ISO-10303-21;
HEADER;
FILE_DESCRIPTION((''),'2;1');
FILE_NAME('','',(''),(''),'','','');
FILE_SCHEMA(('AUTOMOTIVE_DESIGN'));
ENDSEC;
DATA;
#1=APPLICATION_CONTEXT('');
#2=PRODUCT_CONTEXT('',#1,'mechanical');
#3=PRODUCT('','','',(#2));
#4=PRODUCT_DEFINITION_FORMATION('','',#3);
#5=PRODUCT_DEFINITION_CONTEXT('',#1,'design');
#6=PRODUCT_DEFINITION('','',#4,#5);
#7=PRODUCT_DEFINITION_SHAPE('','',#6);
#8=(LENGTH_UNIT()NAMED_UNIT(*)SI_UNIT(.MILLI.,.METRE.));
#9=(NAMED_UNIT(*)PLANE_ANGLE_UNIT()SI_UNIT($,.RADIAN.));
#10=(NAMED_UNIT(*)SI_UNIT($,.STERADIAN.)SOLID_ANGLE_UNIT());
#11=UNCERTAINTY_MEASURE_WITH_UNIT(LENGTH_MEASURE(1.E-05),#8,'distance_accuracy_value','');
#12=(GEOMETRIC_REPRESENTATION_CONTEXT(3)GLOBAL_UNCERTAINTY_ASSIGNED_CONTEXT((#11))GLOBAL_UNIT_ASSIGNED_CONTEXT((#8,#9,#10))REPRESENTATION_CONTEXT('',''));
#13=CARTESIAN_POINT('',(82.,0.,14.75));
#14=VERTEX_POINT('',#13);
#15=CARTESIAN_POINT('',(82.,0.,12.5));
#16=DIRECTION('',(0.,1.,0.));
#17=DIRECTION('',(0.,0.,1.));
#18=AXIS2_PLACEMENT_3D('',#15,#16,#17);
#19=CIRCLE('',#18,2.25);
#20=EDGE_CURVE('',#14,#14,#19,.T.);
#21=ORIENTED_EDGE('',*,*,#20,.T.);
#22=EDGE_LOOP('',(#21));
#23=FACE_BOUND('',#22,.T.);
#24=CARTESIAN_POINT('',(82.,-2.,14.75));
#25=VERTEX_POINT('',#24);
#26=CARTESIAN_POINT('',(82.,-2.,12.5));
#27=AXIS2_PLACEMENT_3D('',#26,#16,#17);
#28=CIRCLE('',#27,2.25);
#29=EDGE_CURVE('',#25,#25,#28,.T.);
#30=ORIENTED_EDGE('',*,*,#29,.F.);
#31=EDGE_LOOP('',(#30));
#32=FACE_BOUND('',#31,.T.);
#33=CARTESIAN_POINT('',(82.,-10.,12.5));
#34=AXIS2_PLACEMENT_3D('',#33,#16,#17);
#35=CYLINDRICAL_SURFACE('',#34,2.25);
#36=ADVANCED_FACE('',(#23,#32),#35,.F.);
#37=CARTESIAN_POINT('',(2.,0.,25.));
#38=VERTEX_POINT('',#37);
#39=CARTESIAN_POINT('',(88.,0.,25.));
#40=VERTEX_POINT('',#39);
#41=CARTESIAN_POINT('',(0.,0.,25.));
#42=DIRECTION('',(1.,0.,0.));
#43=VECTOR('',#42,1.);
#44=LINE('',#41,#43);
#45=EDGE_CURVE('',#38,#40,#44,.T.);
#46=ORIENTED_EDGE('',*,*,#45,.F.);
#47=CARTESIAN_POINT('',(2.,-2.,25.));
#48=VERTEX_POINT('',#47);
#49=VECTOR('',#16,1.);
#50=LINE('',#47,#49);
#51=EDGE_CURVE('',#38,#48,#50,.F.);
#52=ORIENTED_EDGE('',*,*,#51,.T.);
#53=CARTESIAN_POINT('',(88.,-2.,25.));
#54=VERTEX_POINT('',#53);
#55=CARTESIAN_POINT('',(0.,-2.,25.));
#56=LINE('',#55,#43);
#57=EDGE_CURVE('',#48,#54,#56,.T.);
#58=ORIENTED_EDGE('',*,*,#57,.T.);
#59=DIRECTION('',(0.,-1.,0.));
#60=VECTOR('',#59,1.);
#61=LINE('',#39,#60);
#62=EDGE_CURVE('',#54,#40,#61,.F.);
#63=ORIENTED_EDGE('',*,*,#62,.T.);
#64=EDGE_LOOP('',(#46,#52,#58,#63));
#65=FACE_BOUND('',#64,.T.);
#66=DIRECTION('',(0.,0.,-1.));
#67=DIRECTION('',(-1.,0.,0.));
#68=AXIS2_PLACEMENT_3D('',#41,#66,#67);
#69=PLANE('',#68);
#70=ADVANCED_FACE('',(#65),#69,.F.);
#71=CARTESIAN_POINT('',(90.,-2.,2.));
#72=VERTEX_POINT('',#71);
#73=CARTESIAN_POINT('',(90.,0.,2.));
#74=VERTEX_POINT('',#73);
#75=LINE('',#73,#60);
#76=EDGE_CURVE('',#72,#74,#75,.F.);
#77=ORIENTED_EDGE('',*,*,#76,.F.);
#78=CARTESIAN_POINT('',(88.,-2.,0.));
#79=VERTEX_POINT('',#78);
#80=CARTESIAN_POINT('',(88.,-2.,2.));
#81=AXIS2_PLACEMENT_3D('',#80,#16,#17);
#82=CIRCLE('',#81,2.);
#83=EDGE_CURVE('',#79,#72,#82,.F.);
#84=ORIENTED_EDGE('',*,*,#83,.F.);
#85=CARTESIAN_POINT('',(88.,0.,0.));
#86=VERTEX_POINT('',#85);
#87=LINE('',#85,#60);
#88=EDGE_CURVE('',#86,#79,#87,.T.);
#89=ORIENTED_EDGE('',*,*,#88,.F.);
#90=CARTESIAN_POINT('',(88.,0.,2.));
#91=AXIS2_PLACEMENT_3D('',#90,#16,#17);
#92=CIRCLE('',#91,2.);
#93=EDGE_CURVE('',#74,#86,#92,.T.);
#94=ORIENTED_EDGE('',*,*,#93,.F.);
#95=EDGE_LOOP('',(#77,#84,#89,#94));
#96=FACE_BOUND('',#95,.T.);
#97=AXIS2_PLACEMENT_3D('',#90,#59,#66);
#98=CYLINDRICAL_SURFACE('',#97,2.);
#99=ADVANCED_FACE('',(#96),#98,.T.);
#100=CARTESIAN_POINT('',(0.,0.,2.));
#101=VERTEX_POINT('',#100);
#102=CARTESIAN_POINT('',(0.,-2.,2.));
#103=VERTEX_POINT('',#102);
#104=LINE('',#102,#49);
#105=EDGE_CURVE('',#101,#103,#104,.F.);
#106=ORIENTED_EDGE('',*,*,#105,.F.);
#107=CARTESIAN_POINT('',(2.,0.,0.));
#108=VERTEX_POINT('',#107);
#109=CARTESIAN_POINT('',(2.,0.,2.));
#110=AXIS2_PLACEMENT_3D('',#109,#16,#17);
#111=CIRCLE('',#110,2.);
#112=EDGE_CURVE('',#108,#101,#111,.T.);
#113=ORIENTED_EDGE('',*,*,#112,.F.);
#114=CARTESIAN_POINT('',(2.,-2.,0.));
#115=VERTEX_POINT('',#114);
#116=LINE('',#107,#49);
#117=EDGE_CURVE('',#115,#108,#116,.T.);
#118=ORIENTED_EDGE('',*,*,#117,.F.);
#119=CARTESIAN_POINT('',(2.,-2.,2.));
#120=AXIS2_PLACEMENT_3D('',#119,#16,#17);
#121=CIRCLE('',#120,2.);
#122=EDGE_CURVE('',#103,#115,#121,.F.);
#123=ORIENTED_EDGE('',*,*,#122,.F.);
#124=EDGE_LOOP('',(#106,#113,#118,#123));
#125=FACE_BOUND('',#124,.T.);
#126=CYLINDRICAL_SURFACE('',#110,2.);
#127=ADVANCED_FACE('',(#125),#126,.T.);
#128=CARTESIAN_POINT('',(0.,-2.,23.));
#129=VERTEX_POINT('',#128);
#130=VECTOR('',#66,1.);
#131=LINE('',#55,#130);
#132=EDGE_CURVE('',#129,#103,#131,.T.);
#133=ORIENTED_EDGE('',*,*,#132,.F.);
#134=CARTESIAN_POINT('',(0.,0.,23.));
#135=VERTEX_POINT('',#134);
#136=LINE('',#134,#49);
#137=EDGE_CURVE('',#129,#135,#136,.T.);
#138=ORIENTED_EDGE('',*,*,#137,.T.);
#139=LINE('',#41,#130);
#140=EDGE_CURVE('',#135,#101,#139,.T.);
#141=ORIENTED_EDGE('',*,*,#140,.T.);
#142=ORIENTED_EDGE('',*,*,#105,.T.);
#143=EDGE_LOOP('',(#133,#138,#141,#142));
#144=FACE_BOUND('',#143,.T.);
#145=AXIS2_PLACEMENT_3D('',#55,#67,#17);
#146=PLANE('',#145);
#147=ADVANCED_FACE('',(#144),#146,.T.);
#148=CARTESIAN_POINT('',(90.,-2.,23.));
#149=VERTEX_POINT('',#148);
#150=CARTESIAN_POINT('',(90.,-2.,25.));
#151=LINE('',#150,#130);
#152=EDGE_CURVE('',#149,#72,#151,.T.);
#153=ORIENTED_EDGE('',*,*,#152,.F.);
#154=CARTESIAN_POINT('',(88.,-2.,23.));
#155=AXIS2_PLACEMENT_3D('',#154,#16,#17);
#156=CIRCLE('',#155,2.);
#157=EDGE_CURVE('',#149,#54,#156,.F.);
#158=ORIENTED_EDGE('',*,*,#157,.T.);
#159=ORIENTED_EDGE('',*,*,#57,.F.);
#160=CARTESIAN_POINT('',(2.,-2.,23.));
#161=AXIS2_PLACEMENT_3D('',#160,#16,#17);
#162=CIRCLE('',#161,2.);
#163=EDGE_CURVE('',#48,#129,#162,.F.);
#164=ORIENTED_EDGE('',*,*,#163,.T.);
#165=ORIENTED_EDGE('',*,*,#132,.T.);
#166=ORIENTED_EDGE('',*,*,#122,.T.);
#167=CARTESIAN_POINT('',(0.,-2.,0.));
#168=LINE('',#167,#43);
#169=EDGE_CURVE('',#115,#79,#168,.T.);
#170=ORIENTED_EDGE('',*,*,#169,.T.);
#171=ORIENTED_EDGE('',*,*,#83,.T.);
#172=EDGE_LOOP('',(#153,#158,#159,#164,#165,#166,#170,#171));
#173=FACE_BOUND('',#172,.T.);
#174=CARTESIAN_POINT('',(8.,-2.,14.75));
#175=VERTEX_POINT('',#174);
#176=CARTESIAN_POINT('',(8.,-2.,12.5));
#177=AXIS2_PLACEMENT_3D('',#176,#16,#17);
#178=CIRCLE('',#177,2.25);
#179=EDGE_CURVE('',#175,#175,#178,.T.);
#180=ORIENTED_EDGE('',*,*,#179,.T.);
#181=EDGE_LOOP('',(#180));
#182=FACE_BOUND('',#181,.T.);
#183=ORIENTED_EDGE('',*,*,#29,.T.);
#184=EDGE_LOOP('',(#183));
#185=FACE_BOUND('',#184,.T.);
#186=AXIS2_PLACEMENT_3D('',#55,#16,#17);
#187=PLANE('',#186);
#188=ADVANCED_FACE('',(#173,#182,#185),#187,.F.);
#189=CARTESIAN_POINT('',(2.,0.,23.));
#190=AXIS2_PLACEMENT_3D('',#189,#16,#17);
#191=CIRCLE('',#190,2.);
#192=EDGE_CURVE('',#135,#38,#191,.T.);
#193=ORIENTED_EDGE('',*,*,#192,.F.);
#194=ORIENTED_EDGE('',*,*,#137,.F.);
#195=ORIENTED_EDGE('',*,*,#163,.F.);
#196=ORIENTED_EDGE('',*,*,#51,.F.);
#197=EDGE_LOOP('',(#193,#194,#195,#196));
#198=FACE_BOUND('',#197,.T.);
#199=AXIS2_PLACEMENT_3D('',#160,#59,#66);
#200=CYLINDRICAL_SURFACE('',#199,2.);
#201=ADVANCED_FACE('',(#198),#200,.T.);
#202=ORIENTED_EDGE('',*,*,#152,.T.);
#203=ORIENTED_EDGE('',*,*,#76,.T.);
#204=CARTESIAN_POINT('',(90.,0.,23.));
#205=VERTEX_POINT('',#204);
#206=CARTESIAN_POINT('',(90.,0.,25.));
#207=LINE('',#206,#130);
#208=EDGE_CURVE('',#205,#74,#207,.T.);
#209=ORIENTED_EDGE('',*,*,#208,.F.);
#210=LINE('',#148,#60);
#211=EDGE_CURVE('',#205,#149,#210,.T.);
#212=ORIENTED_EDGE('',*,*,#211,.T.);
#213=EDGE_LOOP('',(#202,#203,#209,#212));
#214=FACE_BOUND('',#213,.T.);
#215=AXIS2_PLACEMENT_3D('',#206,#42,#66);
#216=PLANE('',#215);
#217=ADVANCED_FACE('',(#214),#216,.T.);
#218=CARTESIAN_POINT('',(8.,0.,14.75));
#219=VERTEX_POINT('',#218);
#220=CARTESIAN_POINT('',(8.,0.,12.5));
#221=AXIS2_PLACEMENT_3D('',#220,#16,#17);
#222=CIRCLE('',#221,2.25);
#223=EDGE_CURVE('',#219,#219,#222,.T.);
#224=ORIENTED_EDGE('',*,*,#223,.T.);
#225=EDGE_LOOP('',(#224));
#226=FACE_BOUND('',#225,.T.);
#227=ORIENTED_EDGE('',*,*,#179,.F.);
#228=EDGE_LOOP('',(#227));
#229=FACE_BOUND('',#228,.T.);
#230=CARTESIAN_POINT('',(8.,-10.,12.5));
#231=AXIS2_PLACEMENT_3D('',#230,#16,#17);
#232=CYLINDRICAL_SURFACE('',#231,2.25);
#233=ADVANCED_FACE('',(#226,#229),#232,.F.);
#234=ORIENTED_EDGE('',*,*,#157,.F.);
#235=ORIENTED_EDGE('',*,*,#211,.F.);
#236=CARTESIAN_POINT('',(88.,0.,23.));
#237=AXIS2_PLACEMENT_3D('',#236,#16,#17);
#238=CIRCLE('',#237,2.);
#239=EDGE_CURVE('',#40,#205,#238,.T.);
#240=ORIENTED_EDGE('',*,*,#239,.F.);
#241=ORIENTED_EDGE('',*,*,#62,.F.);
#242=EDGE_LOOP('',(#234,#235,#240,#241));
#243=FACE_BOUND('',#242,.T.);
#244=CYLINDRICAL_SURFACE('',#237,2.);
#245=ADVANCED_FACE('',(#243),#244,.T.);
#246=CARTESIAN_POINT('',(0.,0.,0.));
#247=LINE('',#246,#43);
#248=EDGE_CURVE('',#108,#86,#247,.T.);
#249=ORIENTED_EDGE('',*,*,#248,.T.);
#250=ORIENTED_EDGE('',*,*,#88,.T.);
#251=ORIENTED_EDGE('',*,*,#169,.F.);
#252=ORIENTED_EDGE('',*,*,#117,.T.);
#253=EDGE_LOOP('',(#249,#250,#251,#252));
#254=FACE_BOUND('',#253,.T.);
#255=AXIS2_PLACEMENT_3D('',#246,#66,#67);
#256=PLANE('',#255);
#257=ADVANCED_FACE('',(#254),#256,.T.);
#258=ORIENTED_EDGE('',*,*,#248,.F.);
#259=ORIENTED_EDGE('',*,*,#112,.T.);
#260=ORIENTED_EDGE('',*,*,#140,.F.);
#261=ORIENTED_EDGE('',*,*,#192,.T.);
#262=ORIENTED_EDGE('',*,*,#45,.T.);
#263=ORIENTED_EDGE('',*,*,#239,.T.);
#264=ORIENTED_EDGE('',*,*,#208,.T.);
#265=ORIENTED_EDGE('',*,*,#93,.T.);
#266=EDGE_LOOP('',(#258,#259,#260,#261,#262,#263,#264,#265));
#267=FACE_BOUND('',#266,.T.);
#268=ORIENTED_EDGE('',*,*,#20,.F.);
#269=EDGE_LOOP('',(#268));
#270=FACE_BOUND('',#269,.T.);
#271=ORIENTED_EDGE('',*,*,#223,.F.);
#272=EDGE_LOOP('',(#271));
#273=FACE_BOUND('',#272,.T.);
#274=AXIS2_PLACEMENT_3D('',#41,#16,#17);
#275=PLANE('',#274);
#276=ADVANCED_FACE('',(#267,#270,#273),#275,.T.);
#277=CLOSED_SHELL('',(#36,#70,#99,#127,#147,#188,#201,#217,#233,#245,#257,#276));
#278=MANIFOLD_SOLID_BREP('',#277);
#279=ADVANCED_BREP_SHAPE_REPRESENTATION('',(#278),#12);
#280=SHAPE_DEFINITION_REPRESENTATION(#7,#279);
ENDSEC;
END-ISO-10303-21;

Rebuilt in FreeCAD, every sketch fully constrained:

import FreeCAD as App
import Part
import Sketcher


def edges_at(feature, points):
    """Names of the edges that pass closest to the given points."""
    edges = feature.Shape.Edges
    near = lambda p: min(range(len(edges)), key=lambda i: edges[i].distToShape(Part.Vertex(*p))[0])
    return sorted({f"Edge{near(p) + 1}" for p in points})


def add_polygon(sketch, points):
    """Adds a closed chain of lines whose ends are joined by coincident constraints."""
    first, n = sketch.GeometryCount, len(points)
    for a, b in zip(points, points[1:] + points[:1]):
        sketch.addGeometry(Part.LineSegment(App.Vector(*a, 0), App.Vector(*b, 0)), False)
    for i in range(n):
        sketch.addConstraint(Sketcher.Constraint("Coincident", first + i, 2, first + (i + 1) % n, 1))

doc = App.newDocument("Part")
body = doc.addObject("PartDesign::Body", "Body")

# Sketch on XY plane
sketch1 = body.newObject("Sketcher::SketchObject", "Sketch")
sketch1.AttachmentSupport = (doc.getObject("XY_Plane"), [""])
sketch1.MapMode = "FlatFace"
add_polygon(sketch1, [(0, 0), (0, -2), (90, -2), (90, 0)])  # lines 0-3
sketch1.addConstraint(Sketcher.Constraint("Vertical", 0))
sketch1.addConstraint(Sketcher.Constraint("Horizontal", 1))
sketch1.addConstraint(Sketcher.Constraint("Vertical", 2))
sketch1.addConstraint(Sketcher.Constraint("Horizontal", 3))
sketch1.addConstraint(Sketcher.Constraint("Coincident", 3, 2, -1, 1))
sketch1.addConstraint(Sketcher.Constraint("DistanceX", 1, 1, 1, 2, 90.0))
sketch1.addConstraint(Sketcher.Constraint("DistanceY", 0, 2, 0, 1, 2.0))
pad1 = body.newObject("PartDesign::Pad", "Pad")
pad1.Profile = sketch1
pad1.Length = 25
doc.recompute()

fillet = body.newObject("PartDesign::Fillet", "Fillet")
fillet.Base = (pad1, edges_at(pad1, [(90, -1, 25)]))
fillet.Radius = 2
doc.recompute()

fillet2 = body.newObject("PartDesign::Fillet", "Fillet001")
fillet2.Base = (fillet, edges_at(fillet, [(90, -1, 0)]))
fillet2.Radius = 2
doc.recompute()

fillet3 = body.newObject("PartDesign::Fillet", "Fillet002")
fillet3.Base = (fillet2, edges_at(fillet2, [(0, -1, 0)]))
fillet3.Radius = 2
doc.recompute()

fillet4 = body.newObject("PartDesign::Fillet", "Fillet003")
fillet4.Base = (fillet3, edges_at(fillet3, [(0, -1, 25)]))
fillet4.Radius = 2

# Sketch on XZ plane
sketch2 = body.newObject("Sketcher::SketchObject", "Sketch001")
sketch2.AttachmentSupport = (doc.getObject("XZ_Plane"), [""])
sketch2.MapMode = "FlatFace"
sketch2.addGeometry(Part.Circle(App.Vector(82, 12.5, 0), App.Vector(0, 0, 1), 2.25), False)
sketch2.addGeometry(Part.Circle(App.Vector(8, 12.5, 0), App.Vector(0, 0, 1), 2.25), False)
sketch2.addConstraint(Sketcher.Constraint("Equal", 0, 1))
sketch2.addConstraint(Sketcher.Constraint("Horizontal", 0, 3, 1, 3))
sketch2.addConstraint(Sketcher.Constraint("Diameter", 0, 4.5))
sketch2.addConstraint(Sketcher.Constraint("DistanceX", -1, 1, 0, 3, 82.0))
sketch2.addConstraint(Sketcher.Constraint("DistanceX", -1, 1, 1, 3, 8.0))
sketch2.addConstraint(Sketcher.Constraint("DistanceY", -1, 1, 0, 3, 12.5))
pocket1 = body.newObject("PartDesign::Pocket", "Pocket")
pocket1.Profile = sketch2
pocket1.Length = 10
pocket1.Reversed = True

doc.recompute()
